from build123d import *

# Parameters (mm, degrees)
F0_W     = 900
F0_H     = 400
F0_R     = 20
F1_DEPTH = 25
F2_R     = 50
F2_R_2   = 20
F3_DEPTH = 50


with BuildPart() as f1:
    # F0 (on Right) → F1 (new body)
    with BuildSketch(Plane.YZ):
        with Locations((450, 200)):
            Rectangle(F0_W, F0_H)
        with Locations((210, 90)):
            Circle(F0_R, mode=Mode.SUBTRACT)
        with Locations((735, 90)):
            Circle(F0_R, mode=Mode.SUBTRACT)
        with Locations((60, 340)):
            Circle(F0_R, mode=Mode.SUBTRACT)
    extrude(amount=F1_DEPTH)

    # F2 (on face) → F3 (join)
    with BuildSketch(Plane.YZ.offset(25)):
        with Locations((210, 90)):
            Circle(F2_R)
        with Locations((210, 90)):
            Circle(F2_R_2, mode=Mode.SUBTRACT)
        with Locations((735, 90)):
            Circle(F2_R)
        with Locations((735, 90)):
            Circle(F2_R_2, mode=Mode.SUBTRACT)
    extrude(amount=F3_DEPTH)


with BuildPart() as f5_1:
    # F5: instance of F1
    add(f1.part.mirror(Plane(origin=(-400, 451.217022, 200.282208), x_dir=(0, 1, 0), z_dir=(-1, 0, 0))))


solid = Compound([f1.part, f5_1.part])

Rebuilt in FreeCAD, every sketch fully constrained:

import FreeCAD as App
import Part
import Sketcher
from FreeCAD import Vector


def add_polygon(sketch, points):
    """Adds a closed chain of lines whose ends are joined by coincident constraints."""
    first, n = sketch.GeometryCount, len(points)
    for a, b in zip(points, points[1:] + points[:1]):
        sketch.addGeometry(Part.LineSegment(App.Vector(*a, 0), App.Vector(*b, 0)), False)
    for i in range(n):
        sketch.addConstraint(Sketcher.Constraint("Coincident", first + i, 2, first + (i + 1) % n, 1))

doc = App.newDocument("Part")
params = doc.addObject("Spreadsheet::Sheet", "Params")
for row, (alias, value) in enumerate([
    ("sketch1_diameter", "40 mm"),
    ("sketch1_width", "900 mm"),
    ("sketch1_height", "400 mm"),
    ("pad1_length", "25 mm"),
    ("sketch2_diameter", "100 mm"),
    ("sketch2_diameter2", "40 mm"),
    ("pad2_length", "50 mm"),
], start=1):
    params.set(f"A{row}", alias)
    params.set(f"B{row}", "=" + value)
    params.setAlias(f"B{row}", alias)

body = doc.addObject("PartDesign::Body", "Body")

# Sketch on YZ plane
sketch1 = body.newObject("Sketcher::SketchObject", "Sketch")
sketch1.AttachmentSupport = (doc.getObject("YZ_Plane"), [""])
sketch1.MapMode = "FlatFace"
add_polygon(sketch1, [(0, 400), (0, 0), (900, 0), (900, 400)])  # lines 0-3
sketch1.addGeometry(Part.Circle(Vector(210, 90, 0), Vector(0, 0, 1), 20), False)  # 4
sketch1.addGeometry(Part.Circle(Vector(735, 90, 0), Vector(0, 0, 1), 20), False)  # 5
sketch1.addGeometry(Part.Circle(Vector(60, 340, 0), Vector(0, 0, 1), 20), False)  # 6
sketch1.addConstraint([
    Sketcher.Constraint("Vertical", 0),
    Sketcher.Constraint("Horizontal", 1),
    Sketcher.Constraint("Vertical", 2),
    Sketcher.Constraint("Horizontal", 3),
    Sketcher.Constraint("Coincident", 0, 2, -1, 1),
    Sketcher.Constraint("Equal", 4, 5),
    Sketcher.Constraint("Equal", 5, 6),
    Sketcher.Constraint("Horizontal", 4, 3, 5, 3),
    Sketcher.Constraint("Diameter", 4, 40.0),
    Sketcher.Constraint("DistanceX", 1, 1, 1, 2, 900.0),
    Sketcher.Constraint("DistanceY", 0, 2, 0, 1, 400.0),
    Sketcher.Constraint("DistanceX", -1, 1, 4, 3, 210.0),
    Sketcher.Constraint("DistanceY", -1, 1, 4, 3, 90.0),
    Sketcher.Constraint("DistanceX", -1, 1, 5, 3, 735.0),
    Sketcher.Constraint("DistanceX", -1, 1, 6, 3, 60.0),
    Sketcher.Constraint("DistanceY", -1, 1, 6, 3, 340.0),
])
sketch1.setExpression("Constraints[12]", "Params.sketch1_diameter")
sketch1.setExpression("Constraints[13]", "Params.sketch1_width")
sketch1.setExpression("Constraints[14]", "Params.sketch1_height")
pad1 = body.newObject("PartDesign::Pad", "Pad")
pad1.Profile = sketch1
pad1.setExpression("Length", "Params.pad1_length")

# Sketch on YZ plane
sketch2 = body.newObject("Sketcher::SketchObject", "Sketch001")
sketch2.AttachmentSupport = (doc.getObject("YZ_Plane"), [""])
sketch2.MapMode = "FlatFace"
sketch2.AttachmentOffset = App.Placement(Vector(0, 0, 25), App.Rotation())
sketch2.addGeometry([
    Part.Circle(Vector(210, 90, 0), Vector(0, 0, 1), 50),
    Part.Circle(Vector(210, 90, 0), Vector(0, 0, 1), 20),
    Part.Circle(Vector(735, 90, 0), Vector(0, 0, 1), 50),
    Part.Circle(Vector(735, 90, 0), Vector(0, 0, 1), 20),
], False)
sketch2.addConstraint([
    Sketcher.Constraint("Coincident", 1, 3, 0, 3),
    Sketcher.Constraint("Coincident", 3, 3, 2, 3),
    Sketcher.Constraint("Equal", 0, 2),
    Sketcher.Constraint("Equal", 1, 3),
    Sketcher.Constraint("Horizontal", 1, 3, 2, 3),
    Sketcher.Constraint("Diameter", 0, 100.0),
    Sketcher.Constraint("Diameter", 1, 40.0),
    Sketcher.Constraint("DistanceX", -1, 1, 0, 3, 210.0),
    Sketcher.Constraint("DistanceY", -1, 1, 0, 3, 90.0),
    Sketcher.Constraint("DistanceX", -1, 1, 2, 3, 735.0),
])
sketch2.setExpression("Constraints[5]", "Params.sketch2_diameter")
sketch2.setExpression("Constraints[6]", "Params.sketch2_diameter2")
pad2 = body.newObject("PartDesign::Pad", "Pad001")
pad2.Profile = sketch2
pad2.setExpression("Length", "Params.pad2_length")
body2 = doc.addObject("PartDesign::Body", "Body001")
doc.recompute()

mirroring = doc.addObject("Part::Mirroring", "Mirroring")
mirroring.Source = body
mirroring.Base = Vector(-400, 451.217022, 200.282208)
mirroring.Normal = Vector(-1, 0, 0)
body2.BaseFeature = mirroring
doc.recompute()
mirroring.Visibility = False

doc.recompute()
